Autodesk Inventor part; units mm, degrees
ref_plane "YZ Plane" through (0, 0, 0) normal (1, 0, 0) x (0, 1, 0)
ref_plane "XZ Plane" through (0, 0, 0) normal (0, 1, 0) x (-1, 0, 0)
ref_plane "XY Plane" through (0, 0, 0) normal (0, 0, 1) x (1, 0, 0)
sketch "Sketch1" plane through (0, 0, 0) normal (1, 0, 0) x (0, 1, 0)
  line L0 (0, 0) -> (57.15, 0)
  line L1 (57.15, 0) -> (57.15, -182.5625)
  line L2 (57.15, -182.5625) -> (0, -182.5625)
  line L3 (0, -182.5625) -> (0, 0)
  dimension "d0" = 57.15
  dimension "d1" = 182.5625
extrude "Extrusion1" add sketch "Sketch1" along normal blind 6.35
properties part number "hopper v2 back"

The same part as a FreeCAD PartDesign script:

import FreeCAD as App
import Part
import Sketcher
Q = App.Units.Quantity

doc = App.newDocument("Part")
body = doc.addObject("PartDesign::Body", "Body")

# Sketch on YZ plane
sketch1 = body.newObject("Sketcher::SketchObject", "Sketch")
sketch1.AttachmentSupport = (doc.getObject("YZ_Plane"), [""])
sketch1.MapMode = "FlatFace"
sketch1.addGeometry([
    Part.LineSegment(App.Vector(57, 0, 0), App.Vector(0, 0, 0)),
    Part.LineSegment(App.Vector(0, 0, 0), App.Vector(0, -183, 0)),
    Part.LineSegment(App.Vector(0, -183, 0), App.Vector(57, -183, 0)),
    Part.LineSegment(App.Vector(57, -183, 0), App.Vector(57, 0, 0)),
], False)
sketch1.addConstraint([
    Sketcher.Constraint("Coincident", 0, 2, 1, 1),
    Sketcher.Constraint("Coincident", 1, 2, 2, 1),
    Sketcher.Constraint("Coincident", 2, 2, 3, 1),
    Sketcher.Constraint("Coincident", 3, 2, 0, 1),
    Sketcher.Constraint("Horizontal", 0),
    Sketcher.Constraint("Vertical", 1),
    Sketcher.Constraint("Horizontal", 2),
    Sketcher.Constraint("Vertical", 3),
    Sketcher.Constraint("Coincident", 0, 2, -1, 1),
    Sketcher.Constraint("DistanceX", 0, 2, 0, 1, Q("2.25 in")),
    Sketcher.Constraint("DistanceY", 1, 2, 1, 1, Q("7.1875 in")),
])
pad1 = body.newObject("PartDesign::Pad", "Pad")
pad1.Profile = sketch1
pad1.Length = Q("0.25 in")

doc.recompute()
